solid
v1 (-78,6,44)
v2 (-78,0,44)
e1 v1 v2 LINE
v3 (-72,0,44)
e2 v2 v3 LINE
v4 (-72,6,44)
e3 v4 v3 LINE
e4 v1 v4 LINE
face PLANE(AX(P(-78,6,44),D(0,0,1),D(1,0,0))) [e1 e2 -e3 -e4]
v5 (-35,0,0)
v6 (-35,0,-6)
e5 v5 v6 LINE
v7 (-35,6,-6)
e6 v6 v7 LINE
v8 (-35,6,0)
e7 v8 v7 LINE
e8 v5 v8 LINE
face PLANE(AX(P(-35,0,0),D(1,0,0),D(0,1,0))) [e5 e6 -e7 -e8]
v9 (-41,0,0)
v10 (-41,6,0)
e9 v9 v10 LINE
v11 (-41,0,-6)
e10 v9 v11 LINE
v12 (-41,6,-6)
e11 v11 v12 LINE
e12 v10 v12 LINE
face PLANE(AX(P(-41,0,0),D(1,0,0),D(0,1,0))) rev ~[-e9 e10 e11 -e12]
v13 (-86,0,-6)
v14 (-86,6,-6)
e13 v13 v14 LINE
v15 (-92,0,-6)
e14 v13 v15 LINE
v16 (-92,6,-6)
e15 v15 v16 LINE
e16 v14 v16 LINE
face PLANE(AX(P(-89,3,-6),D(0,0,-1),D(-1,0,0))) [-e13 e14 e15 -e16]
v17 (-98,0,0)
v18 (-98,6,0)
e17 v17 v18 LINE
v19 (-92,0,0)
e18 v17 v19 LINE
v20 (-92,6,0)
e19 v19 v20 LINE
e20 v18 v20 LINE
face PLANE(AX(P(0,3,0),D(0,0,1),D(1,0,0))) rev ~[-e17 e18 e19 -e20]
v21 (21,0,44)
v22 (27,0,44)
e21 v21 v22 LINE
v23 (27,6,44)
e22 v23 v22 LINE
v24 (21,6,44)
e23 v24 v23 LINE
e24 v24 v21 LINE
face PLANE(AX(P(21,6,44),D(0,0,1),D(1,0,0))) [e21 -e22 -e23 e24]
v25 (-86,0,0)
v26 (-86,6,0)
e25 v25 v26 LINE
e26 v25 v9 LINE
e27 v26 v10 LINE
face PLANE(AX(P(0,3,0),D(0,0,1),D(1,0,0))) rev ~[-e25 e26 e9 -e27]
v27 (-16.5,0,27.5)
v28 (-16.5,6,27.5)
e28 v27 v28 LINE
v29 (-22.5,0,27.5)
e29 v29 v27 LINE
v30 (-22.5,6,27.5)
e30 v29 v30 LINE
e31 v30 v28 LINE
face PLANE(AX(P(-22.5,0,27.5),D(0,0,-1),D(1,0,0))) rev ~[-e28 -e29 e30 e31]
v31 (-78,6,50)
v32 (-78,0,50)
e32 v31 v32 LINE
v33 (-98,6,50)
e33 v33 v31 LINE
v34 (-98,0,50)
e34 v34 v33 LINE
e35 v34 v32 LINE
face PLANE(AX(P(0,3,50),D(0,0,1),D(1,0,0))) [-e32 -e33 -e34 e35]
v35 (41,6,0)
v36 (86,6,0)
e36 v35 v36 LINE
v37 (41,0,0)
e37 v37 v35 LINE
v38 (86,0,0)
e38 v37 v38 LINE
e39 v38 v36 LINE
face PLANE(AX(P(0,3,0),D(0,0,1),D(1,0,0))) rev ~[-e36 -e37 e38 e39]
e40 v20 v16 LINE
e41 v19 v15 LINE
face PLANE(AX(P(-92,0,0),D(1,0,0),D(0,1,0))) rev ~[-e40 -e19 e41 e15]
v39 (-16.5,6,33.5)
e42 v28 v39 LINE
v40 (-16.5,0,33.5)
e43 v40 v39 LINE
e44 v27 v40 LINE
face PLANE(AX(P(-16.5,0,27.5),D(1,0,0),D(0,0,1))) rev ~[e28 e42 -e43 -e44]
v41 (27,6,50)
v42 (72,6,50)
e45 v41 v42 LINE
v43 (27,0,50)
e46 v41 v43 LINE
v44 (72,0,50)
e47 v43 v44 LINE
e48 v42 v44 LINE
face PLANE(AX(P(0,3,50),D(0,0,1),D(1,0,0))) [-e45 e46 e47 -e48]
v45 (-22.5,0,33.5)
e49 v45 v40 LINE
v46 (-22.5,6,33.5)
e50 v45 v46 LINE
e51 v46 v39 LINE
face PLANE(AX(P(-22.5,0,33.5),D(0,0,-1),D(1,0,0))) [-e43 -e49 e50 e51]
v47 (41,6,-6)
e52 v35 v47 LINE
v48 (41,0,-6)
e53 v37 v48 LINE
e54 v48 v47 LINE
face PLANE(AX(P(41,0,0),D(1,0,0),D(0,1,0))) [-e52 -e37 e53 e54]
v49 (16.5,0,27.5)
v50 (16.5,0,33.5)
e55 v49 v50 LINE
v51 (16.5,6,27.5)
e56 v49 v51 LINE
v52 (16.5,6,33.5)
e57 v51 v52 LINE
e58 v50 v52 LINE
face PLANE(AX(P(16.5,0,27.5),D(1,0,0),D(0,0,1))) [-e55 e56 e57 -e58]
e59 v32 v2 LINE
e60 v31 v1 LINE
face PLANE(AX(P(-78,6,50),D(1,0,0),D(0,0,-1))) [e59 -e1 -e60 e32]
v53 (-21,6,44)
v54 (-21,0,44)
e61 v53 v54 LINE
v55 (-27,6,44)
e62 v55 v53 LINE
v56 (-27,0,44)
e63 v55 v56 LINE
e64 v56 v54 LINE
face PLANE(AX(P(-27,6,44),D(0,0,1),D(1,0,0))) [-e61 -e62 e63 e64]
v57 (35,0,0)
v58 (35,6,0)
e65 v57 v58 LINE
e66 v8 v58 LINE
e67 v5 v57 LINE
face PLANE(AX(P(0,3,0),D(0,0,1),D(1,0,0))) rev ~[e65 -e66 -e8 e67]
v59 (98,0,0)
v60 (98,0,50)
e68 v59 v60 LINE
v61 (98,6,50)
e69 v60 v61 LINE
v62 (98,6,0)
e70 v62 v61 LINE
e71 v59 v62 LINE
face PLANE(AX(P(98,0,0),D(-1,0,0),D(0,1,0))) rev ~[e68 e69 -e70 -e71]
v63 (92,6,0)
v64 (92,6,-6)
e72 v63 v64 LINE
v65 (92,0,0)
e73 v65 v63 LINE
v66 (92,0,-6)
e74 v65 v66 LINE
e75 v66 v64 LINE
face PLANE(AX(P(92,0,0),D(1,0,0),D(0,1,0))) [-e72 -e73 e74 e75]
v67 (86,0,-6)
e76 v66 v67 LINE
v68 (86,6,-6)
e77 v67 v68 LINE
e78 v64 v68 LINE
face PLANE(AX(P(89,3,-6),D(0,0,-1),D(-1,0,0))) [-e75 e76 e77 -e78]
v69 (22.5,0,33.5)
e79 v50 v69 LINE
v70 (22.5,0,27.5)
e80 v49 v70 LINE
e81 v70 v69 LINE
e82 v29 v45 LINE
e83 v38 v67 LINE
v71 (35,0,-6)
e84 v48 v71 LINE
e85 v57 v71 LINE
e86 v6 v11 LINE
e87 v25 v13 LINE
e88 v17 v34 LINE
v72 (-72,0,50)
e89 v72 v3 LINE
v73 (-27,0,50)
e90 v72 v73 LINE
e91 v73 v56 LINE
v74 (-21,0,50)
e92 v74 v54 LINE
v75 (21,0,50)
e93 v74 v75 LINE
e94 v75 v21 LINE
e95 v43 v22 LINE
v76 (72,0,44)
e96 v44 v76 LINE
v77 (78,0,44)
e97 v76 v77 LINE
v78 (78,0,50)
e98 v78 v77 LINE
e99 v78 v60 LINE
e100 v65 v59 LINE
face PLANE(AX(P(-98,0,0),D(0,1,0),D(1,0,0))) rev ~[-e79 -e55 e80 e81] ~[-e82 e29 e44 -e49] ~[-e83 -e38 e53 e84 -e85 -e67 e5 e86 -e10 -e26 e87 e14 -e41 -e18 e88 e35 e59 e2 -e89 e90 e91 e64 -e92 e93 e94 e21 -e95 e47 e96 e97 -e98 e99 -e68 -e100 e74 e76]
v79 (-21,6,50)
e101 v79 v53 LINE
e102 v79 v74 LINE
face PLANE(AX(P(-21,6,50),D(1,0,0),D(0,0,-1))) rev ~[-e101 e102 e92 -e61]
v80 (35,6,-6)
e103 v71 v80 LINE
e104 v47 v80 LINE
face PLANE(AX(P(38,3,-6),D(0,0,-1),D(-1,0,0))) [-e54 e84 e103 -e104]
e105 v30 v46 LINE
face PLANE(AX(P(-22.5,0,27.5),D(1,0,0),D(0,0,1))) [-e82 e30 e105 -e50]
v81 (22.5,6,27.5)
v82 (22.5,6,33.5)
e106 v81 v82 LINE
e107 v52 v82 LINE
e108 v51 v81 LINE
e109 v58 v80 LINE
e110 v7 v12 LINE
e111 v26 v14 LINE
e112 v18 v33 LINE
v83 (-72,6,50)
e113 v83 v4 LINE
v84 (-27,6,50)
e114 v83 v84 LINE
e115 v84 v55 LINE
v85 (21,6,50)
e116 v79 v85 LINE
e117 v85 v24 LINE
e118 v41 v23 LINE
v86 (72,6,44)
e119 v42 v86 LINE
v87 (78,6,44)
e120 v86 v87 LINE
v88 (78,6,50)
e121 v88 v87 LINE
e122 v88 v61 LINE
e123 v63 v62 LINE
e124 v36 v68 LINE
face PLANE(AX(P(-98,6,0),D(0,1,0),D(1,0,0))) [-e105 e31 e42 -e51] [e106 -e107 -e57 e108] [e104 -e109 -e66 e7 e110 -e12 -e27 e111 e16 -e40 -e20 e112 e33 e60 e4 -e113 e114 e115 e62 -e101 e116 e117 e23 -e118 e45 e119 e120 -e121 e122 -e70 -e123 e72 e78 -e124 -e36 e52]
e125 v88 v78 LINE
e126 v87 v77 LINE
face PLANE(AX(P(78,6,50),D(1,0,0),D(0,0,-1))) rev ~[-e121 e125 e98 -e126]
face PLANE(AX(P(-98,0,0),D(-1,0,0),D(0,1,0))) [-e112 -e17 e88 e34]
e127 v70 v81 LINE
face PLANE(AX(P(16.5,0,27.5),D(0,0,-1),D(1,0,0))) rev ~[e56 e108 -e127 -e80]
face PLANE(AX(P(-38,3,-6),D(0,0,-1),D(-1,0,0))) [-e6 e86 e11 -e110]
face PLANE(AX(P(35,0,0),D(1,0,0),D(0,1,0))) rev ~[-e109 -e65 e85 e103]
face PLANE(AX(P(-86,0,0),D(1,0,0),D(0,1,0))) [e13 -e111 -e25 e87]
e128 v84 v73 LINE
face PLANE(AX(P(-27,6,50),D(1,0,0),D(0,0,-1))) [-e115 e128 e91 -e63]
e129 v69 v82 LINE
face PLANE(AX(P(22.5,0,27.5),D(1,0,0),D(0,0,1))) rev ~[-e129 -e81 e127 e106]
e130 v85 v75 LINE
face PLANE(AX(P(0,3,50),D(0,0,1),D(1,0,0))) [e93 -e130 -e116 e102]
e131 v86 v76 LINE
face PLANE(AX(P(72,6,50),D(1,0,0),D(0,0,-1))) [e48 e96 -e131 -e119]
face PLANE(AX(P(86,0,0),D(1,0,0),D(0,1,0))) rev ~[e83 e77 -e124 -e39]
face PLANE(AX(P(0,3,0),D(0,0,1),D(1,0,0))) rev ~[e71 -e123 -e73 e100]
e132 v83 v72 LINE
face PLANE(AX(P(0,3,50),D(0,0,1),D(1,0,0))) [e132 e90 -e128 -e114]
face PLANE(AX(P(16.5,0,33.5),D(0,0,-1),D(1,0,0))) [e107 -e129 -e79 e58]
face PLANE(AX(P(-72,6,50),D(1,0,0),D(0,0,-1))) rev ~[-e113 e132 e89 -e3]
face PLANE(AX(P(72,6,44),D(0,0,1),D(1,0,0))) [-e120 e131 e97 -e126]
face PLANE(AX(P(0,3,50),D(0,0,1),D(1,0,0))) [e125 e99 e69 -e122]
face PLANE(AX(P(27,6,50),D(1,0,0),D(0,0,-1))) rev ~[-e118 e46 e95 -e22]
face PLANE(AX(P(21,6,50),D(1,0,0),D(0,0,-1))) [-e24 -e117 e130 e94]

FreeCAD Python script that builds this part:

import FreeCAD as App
import Part
import Sketcher

V = App.Vector
Q = App.Units.Quantity


def add_polygon(sketch, points):
    """Adds a closed chain of lines whose ends are joined by coincident constraints."""
    first, n = sketch.GeometryCount, len(points)
    for a, b in zip(points, points[1:] + points[:1]):
        sketch.addGeometry(Part.LineSegment(App.Vector(*a, 0), App.Vector(*b, 0)), False)
    for i in range(n):
        sketch.addConstraint(Sketcher.Constraint("Coincident", first + i, 2, first + (i + 1) % n, 1))

doc = App.newDocument("Part")
params = doc.addObject("Spreadsheet::Sheet", "Params")
for row, (alias, value) in enumerate([
    ("sketch1_width", "196 mm"),
    ("sketch1_height", "6 mm"),
    ("pad1_length", "50 mm"),
    ("sketch2_width", "6 mm"),
    ("pad2_length", "6 mm"),
    ("sketch3_width", "6 mm"),
    ("pocket1_length", "6 mm"),
    ("sketch4_width", "6 mm"),
    ("pocket2_length", "6 mm"),
], start=1):
    params.set(f"A{row}", alias)
    params.set(f"B{row}", "=" + value)
    params.setAlias(f"B{row}", alias)

body = doc.addObject("PartDesign::Body", "Body")

# Sketch on XY plane
sketch1 = doc.addObject("Sketcher::SketchObject", "Sketch")
body.addObject(sketch1)
sketch1.AttachmentSupport = (doc.XY_Plane, [""])
sketch1.MapMode = "FlatFace"
add_polygon(sketch1, [(-98, 6), (-98, 0), (98, 0), (98, 6)])  # lines 0-3
sketch1.addConstraint([
    Sketcher.Constraint("Vertical", 0),
    Sketcher.Constraint("Horizontal", 1),
    Sketcher.Constraint("Vertical", 2),
    Sketcher.Constraint("Horizontal", 3),
    Sketcher.Constraint("Symmetric", 0, 2, 1, 2, -1, 1),
    Sketcher.Constraint("DistanceX", 1, 1, 1, 2, Q("196 mm")),
    Sketcher.Constraint("DistanceY", 0, 2, 0, 1, Q("6 mm")),
])
sketch1.setExpression("Constraints[9]", "Params.sketch1_width")
sketch1.setExpression("Constraints[10]", "Params.sketch1_height")
pad1 = doc.addObject("PartDesign::Pad", "Pad")
body.addObject(pad1)
pad1.Profile = sketch1
pad1.setExpression("Length", "Params.pad1_length")

# Sketch on XY plane
sketch2 = doc.addObject("Sketcher::SketchObject", "Sketch001")
body.addObject(sketch2)
sketch2.AttachmentSupport = (doc.XY_Plane, [""])
sketch2.MapMode = "FlatFace"
add_polygon(sketch2, [(92, 6), (92, 0), (86, 0), (86, 6)])  # lines 0-3
add_polygon(sketch2, [(41, 6), (41, 0), (35, 0), (35, 6)])  # lines 4-7
add_polygon(sketch2, [(-35, 6), (-35, 0), (-41, 0), (-41, 6)])  # lines 8-11
add_polygon(sketch2, [(-86, 6), (-86, 0), (-92, 0), (-92, 6)])  # lines 12-15
sketch2.addConstraint([
    Sketcher.Constraint("Vertical", 0),
    Sketcher.Constraint("Horizontal", 1),
    Sketcher.Constraint("Vertical", 2),
    Sketcher.Constraint("Horizontal", 3),
    Sketcher.Constraint("Vertical", 4),
    Sketcher.Constraint("Horizontal", 5),
    Sketcher.Constraint("Vertical", 6),
    Sketcher.Constraint("Horizontal", 7),
    Sketcher.Constraint("Vertical", 8),
    Sketcher.Constraint("Horizontal", 9),
    Sketcher.Constraint("Vertical", 10),
    Sketcher.Constraint("Horizontal", 11),
    Sketcher.Constraint("Vertical", 12),
    Sketcher.Constraint("Horizontal", 13),
    Sketcher.Constraint("Vertical", 14),
    Sketcher.Constraint("Horizontal", 15),
    Sketcher.Constraint("Symmetric", 5, 2, 8, 2, -1, 1),
    Sketcher.Constraint("Symmetric", 1, 2, 12, 2, -1, 1),
    Sketcher.Constraint("Symmetric", 4, 2, 9, 2, -2),
    Sketcher.Constraint("Symmetric", 0, 2, 13, 2, -2),
    Sketcher.Constraint("Horizontal", 3, 2, 6, 2),
    Sketcher.Constraint("Horizontal", 7, 2, 10, 2),
    Sketcher.Constraint("Horizontal", 11, 2, 14, 2),
    Sketcher.Constraint("Equal", 3, 5),
    Sketcher.Constraint("Equal", 15, 0),
    Sketcher.Constraint("DistanceX", 1, 2, 1, 1, Q("6 mm")),
    Sketcher.Constraint("DistanceX", -1, 1, 0, 2, Q("92 mm")),
    Sketcher.Constraint("DistanceX", -1, 1, 4, 2, Q("41 mm")),
])
sketch2.setExpression("Constraints[41]", "Params.sketch2_width")
pad2 = doc.addObject("PartDesign::Pad", "Pad001")
body.addObject(pad2)
pad2.Profile = sketch2
pad2.setExpression("Length", "Params.pad2_length")
pad2.Reversed = True

# Sketch on XZ plane
sketch3 = doc.addObject("Sketcher::SketchObject", "Sketch002")
body.addObject(sketch3)
sketch3.AttachmentSupport = (doc.XZ_Plane, [""])
sketch3.MapMode = "FlatFace"
sketch3.AttachmentOffset = App.Placement(V(0, 0, -6), App.Rotation())
add_polygon(sketch3, [(72, 44), (72, 50), (78, 50), (78, 44)])  # lines 0-3
add_polygon(sketch3, [(21, 44), (21, 50), (27, 50), (27, 44)])  # lines 4-7
add_polygon(sketch3, [(-27, 44), (-27, 50), (-21, 50), (-21, 44)])  # lines 8-11
add_polygon(sketch3, [(-78, 44), (-78, 50), (-72, 50), (-72, 44)])  # lines 12-15
sketch3.addConstraint([
    Sketcher.Constraint("Vertical", 0),
    Sketcher.Constraint("Horizontal", 1),
    Sketcher.Constraint("Vertical", 2),
    Sketcher.Constraint("Horizontal", 3),
    Sketcher.Constraint("Vertical", 4),
    Sketcher.Constraint("Horizontal", 5),
    Sketcher.Constraint("Vertical", 6),
    Sketcher.Constraint("Horizontal", 7),
    Sketcher.Constraint("Vertical", 8),
    Sketcher.Constraint("Horizontal", 9),
    Sketcher.Constraint("Vertical", 10),
    Sketcher.Constraint("Horizontal", 11),
    Sketcher.Constraint("Vertical", 12),
    Sketcher.Constraint("Horizontal", 13),
    Sketcher.Constraint("Vertical", 14),
    Sketcher.Constraint("Horizontal", 15),
    Sketcher.Constraint("Symmetric", 5, 2, 8, 2, -2),
    Sketcher.Constraint("Symmetric", 7, 2, 10, 2, -2),
    Sketcher.Constraint("Symmetric", 1, 2, 12, 2, -2),
    Sketcher.Constraint("Symmetric", 3, 2, 14, 2, -2),
    Sketcher.Constraint("Horizontal", 1, 2, 4, 2),
    Sketcher.Constraint("Horizontal", 3, 2, 6, 2),
    Sketcher.Constraint("Equal", 3, 5),
    Sketcher.Constraint("Equal", 15, 0),
    Sketcher.Constraint("DistanceX", 1, 1, 1, 2, Q("6 mm")),
    Sketcher.Constraint("DistanceX", -1, 1, 0, 2, Q("72 mm")),
    Sketcher.Constraint("DistanceY", -1, 1, 0, 2, Q("50 mm")),
    Sketcher.Constraint("DistanceX", -1, 1, 4, 2, Q("21 mm")),
])
sketch3.setExpression("Constraints[40]", "Params.sketch3_width")
pocket1 = doc.addObject("PartDesign::Pocket", "Pocket")
body.addObject(pocket1)
pocket1.Profile = sketch3
pocket1.setExpression("Length", "Params.pocket1_length")
pocket1.Reversed = True

# Sketch on XZ plane
sketch4 = doc.addObject("Sketcher::SketchObject", "Sketch003")
body.addObject(sketch4)
sketch4.AttachmentSupport = (doc.XZ_Plane, [""])
sketch4.MapMode = "FlatFace"
add_polygon(sketch4, [(-22, 34), (-22, 28), (-16, 28), (-16, 34)])  # lines 0-3
add_polygon(sketch4, [(16, 34), (16, 28), (22, 28), (22, 34)])  # lines 4-7
sketch4.addConstraint([
    Sketcher.Constraint("Vertical", 0),
    Sketcher.Constraint("Horizontal", 1),
    Sketcher.Constraint("Vertical", 2),
    Sketcher.Constraint("Horizontal", 3),
    Sketcher.Constraint("Vertical", 4),
    Sketcher.Constraint("Horizontal", 5),
    Sketcher.Constraint("Vertical", 6),
    Sketcher.Constraint("Horizontal", 7),
    Sketcher.Constraint("Symmetric", 1, 2, 4, 2, -2),
    Sketcher.Constraint("Symmetric", 3, 2, 6, 2, -2),
    Sketcher.Constraint("Equal", 7, 0),
    Sketcher.Constraint("DistanceX", 1, 1, 1, 2, Q("6 mm")),
    Sketcher.Constraint("DistanceX", 1, 2, 4, 2, Q("33 mm")),
    Sketcher.Constraint("DistanceY", -1, 1, 0, 2, Q("27.5 mm")),
])
sketch4.setExpression("Constraints[19]", "Params.sketch4_width")
pocket2 = doc.addObject("PartDesign::Pocket", "Pocket001")
body.addObject(pocket2)
pocket2.Profile = sketch4
pocket2.setExpression("Length", "Params.pocket2_length")

doc.recompute()
